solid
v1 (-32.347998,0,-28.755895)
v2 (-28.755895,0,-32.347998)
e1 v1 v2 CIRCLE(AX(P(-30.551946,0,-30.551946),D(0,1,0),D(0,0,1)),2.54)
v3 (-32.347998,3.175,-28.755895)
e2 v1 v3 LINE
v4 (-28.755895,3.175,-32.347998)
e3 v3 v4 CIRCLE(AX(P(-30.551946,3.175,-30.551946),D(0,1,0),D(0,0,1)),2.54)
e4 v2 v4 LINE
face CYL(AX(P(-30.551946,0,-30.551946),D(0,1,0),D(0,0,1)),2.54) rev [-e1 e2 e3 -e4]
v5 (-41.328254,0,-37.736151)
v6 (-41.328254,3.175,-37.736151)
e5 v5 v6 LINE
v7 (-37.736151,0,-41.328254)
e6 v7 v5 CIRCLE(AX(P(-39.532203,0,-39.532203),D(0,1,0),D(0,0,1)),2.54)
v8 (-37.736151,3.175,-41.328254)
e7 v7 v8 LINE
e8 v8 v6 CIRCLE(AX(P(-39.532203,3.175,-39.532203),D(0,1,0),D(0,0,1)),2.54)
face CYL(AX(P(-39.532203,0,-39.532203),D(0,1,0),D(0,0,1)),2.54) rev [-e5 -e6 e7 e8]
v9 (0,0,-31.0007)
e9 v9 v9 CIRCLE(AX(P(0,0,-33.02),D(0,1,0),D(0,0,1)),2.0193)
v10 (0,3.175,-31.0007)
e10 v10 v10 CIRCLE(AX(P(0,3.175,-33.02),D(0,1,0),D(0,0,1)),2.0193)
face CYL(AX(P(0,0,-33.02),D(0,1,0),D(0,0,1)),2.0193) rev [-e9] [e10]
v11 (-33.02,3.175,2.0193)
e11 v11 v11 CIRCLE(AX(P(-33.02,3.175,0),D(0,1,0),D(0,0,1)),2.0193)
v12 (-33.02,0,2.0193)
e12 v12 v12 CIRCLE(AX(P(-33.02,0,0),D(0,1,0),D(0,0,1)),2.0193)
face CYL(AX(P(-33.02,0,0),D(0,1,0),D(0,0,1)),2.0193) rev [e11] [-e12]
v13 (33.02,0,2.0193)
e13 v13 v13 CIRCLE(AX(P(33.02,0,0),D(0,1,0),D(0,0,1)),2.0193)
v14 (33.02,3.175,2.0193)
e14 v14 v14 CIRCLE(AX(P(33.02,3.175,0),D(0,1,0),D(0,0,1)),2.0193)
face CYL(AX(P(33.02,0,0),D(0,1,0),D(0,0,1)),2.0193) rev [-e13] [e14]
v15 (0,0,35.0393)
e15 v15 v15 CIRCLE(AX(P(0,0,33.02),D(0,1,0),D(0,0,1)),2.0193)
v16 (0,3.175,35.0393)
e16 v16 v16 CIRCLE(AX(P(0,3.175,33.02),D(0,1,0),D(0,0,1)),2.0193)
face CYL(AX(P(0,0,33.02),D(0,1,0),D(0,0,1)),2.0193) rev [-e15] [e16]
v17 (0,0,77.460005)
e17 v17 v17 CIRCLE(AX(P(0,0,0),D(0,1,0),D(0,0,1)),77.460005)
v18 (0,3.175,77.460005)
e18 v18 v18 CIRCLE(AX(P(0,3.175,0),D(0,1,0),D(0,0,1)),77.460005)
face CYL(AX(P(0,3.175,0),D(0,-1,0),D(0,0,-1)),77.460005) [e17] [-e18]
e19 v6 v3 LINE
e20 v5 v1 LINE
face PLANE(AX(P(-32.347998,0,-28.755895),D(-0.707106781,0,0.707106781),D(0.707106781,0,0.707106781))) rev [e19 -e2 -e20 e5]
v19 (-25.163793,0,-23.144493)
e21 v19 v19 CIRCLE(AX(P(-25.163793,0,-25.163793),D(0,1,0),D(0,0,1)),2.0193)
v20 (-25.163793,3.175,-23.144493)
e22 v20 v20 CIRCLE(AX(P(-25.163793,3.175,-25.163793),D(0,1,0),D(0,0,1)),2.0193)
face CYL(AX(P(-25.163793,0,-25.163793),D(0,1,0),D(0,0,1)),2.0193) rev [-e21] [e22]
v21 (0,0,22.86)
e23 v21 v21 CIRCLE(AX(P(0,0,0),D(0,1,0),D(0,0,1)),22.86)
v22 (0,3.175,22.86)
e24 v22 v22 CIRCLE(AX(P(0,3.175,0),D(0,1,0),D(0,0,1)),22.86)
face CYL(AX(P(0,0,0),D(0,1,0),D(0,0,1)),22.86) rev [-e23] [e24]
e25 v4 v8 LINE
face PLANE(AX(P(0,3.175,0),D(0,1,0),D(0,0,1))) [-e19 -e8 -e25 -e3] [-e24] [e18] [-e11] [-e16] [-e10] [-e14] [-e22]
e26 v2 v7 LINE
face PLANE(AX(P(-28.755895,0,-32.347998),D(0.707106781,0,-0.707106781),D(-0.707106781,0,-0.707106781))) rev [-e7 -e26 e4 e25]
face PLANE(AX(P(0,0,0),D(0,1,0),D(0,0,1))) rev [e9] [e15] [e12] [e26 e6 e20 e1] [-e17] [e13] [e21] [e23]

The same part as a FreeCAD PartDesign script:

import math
import FreeCAD as App
import Part
import Sketcher

V = App.Vector
Q = App.Units.Quantity

doc = App.newDocument("Part")
body = doc.addObject("PartDesign::Body", "Body")

# Sketch on XZ plane
sketch1 = body.newObject("Sketcher::SketchObject", "Sketch")
sketch1.AttachmentSupport = (doc.getObject("XZ_Plane"), [""])
sketch1.MapMode = "FlatFace"
sketch1.addGeometry(Part.Circle(V(0, 0, 0), V(0, 0, 1), 77.460005), False)
sketch1.addConstraint(Sketcher.Constraint("Coincident", 0, 3, -1, 1))
sketch1.addConstraint(Sketcher.Constraint("Diameter", 0, Q("154.92001 mm")))
pad1 = body.newObject("PartDesign::Pad", "Pad")
pad1.Profile = sketch1
pad1.Length = Q("0.125 in")
pad1.Reversed = True

# Sketch on XZ plane
sketch2 = body.newObject("Sketcher::SketchObject", "Sketch001")
sketch2.AttachmentSupport = (doc.getObject("XZ_Plane"), [""])
sketch2.MapMode = "FlatFace"
sketch2.AttachmentOffset = App.Placement(V(0, 0, -0.125 * 25.4), App.Rotation())
sketch2.addGeometry(Part.Circle(V(0, 0, 0), V(0, 0, 1), 22.86), False)
sketch2.addGeometry(Part.Circle(V(0, -33.02, 0), V(0, 0, 1), 2.0193), False)
sketch2.addGeometry(Part.Circle(V(33.02, 0, 0), V(0, 0, 1), 2.0193), False)
sketch2.addGeometry(Part.Circle(V(0, 33.02, 0), V(0, 0, 1), 2.0193), False)
sketch2.addGeometry(Part.Circle(V(-33.02, 0, 0), V(0, 0, 1), 2.0193), False)
sketch2.addConstraint(Sketcher.Constraint("Coincident", 0, 3, -1, 1))
sketch2.addConstraint(Sketcher.Constraint("Equal", 1, 2))
sketch2.addConstraint(Sketcher.Constraint("Equal", 2, 3))
sketch2.addConstraint(Sketcher.Constraint("Equal", 3, 4))
sketch2.addConstraint(Sketcher.Constraint("Symmetric", 1, 3, 3, 3, -1, 1))
sketch2.addConstraint(Sketcher.Constraint("Symmetric", 2, 3, 4, 3, -1, 1))
sketch2.addConstraint(Sketcher.Constraint("PointOnObject", 1, 3, -2))
sketch2.addConstraint(Sketcher.Constraint("PointOnObject", 2, 3, -1))
sketch2.addConstraint(Sketcher.Constraint("Diameter", 0, Q("1.8 in")))
sketch2.addConstraint(Sketcher.Constraint("Diameter", 1, Q("0.159 in")))
sketch2.addConstraint(Sketcher.Constraint("DistanceY", 1, 3, -1, 1, Q("1.3 in")))
sketch2.addConstraint(Sketcher.Constraint("DistanceX", -1, 1, 2, 3, Q("1.3 in")))
pocket1 = body.newObject("PartDesign::Pocket", "Pocket")
pocket1.Profile = sketch2
pocket1.Type = "ThroughAll"
pocket1.Reversed = True

# Sketch on XZ plane
sketch3 = body.newObject("Sketcher::SketchObject", "Sketch002")
sketch3.AttachmentSupport = (doc.getObject("XZ_Plane"), [""])
sketch3.MapMode = "FlatFace"
sketch3.AttachmentOffset = App.Placement(V(0, 0, -0.125 * 25.4), App.Rotation())
sketch3.addGeometry(Part.LineSegment(V(-41.328254, -37.736151, 0), V(-32.347998, -28.755895, 0)), False)
sketch3.addGeometry(Part.ArcOfCircle(Part.Circle(V(-30.551946, -30.551946, 0), V(0, 0, 1), 2.54), math.radians(-45), math.radians(135)), False)
sketch3.addGeometry(Part.LineSegment(V(-28.755895, -32.347998, 0), V(-37.736151, -41.328254, 0)), False)
sketch3.addGeometry(Part.ArcOfCircle(Part.Circle(V(-39.532203, -39.532203, 0), V(0, 0, 1), 2.54), math.radians(135), math.radians(315)), False)
sketch3.addConstraint(Sketcher.Constraint("Tangent", 0, 2, 1, 2))
sketch3.addConstraint(Sketcher.Constraint("Tangent", 1, 1, 2, 1))
sketch3.addConstraint(Sketcher.Constraint("Tangent", 2, 2, 3, 2))
sketch3.addConstraint(Sketcher.Constraint("Tangent", 3, 1, 0, 1))
sketch3.addConstraint(Sketcher.Constraint("Equal", 1, 3))
sketch3.addConstraint(Sketcher.Constraint("Radius", 1, Q("0.1 in")))
sketch3.addConstraint(Sketcher.Constraint("Angle", 0, Q("45 deg")))
sketch3.addConstraint(Sketcher.Constraint("Distance", 0, Q("0.5 in")))
sketch3.addConstraint(Sketcher.Constraint("DistanceX", 2, 2, -1, 1, Q("37.736151 mm")))
sketch3.addConstraint(Sketcher.Constraint("DistanceY", 3, 1, -1, 1, Q("37.736151 mm")))
pocket2 = body.newObject("PartDesign::Pocket", "Pocket001")
pocket2.Profile = sketch3
pocket2.Length = Q("0.125 in")
pocket2.Reversed = True

# Sketch on XZ plane
sketch4 = body.newObject("Sketcher::SketchObject", "Sketch003")
sketch4.AttachmentSupport = (doc.getObject("XZ_Plane"), [""])
sketch4.MapMode = "FlatFace"
sketch4.AttachmentOffset = App.Placement(V(0, 0, -0.125 * 25.4), App.Rotation())
sketch4.addGeometry(Part.Circle(V(-25.163793, -25.163793, 0), V(0, 0, 1), 2.0193), False)
sketch4.addConstraint(Sketcher.Constraint("Diameter", 0, Q("0.159 in")))
sketch4.addConstraint(Sketcher.Constraint("DistanceX", 0, 3, -1, 1, Q("25.163793 mm")))
sketch4.addConstraint(Sketcher.Constraint("DistanceY", 0, 3, -1, 1, Q("25.163793 mm")))
pocket3 = body.newObject("PartDesign::Pocket", "Pocket002")
pocket3.Profile = sketch4
pocket3.Type = "ThroughAll"
pocket3.Reversed = True

doc.recompute()
